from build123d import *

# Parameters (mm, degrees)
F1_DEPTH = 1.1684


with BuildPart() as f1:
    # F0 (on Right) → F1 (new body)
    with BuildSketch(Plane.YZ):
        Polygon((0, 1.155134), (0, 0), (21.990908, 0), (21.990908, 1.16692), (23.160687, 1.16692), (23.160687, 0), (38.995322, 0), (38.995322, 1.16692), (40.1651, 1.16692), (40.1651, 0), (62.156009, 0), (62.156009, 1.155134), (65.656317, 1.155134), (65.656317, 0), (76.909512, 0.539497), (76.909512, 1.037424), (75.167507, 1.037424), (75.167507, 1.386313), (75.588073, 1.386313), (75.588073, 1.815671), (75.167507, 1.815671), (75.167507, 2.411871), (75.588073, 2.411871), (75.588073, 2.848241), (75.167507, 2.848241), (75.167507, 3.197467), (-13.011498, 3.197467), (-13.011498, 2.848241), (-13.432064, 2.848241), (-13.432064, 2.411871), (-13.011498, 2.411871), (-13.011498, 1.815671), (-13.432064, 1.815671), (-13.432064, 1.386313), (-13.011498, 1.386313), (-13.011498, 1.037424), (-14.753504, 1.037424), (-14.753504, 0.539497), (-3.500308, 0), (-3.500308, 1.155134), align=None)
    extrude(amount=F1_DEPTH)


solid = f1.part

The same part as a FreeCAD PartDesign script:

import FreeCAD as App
import Part
import Sketcher
from FreeCAD import Vector
Q = App.Units.Quantity

doc = App.newDocument("Part")
body = doc.addObject("PartDesign::Body", "Body")

# Sketch on YZ plane
sketch1 = body.newObject("Sketcher::SketchObject", "Sketch")
sketch1.AttachmentSupport = (doc.getObject("YZ_Plane"), [""])
sketch1.MapMode = "FlatFace"
sketch1.addGeometry([
    Part.LineSegment(Vector(0, 1.16, 0), Vector(0, 0, 0)),  # 0
    Part.LineSegment(Vector(0, 0, 0), Vector(21.99, 0, 0)),  # 1
    Part.LineSegment(Vector(21.99, 0, 0), Vector(21.99, 1.17, 0)),  # 2
    Part.LineSegment(Vector(21.99, 1.17, 0), Vector(23.16, 1.17, 0)),  # 3
    Part.LineSegment(Vector(23.16, 1.17, 0), Vector(23.16, 0, 0)),  # 4
    Part.LineSegment(Vector(23.16, 0, 0), Vector(39, 0, 0)),  # 5
    Part.LineSegment(Vector(39, 0, 0), Vector(39, 1.17, 0)),  # 6
    Part.LineSegment(Vector(39, 1.17, 0), Vector(40.17, 1.17, 0)),  # 7
    Part.LineSegment(Vector(40.17, 1.17, 0), Vector(40.17, 0, 0)),  # 8
    Part.LineSegment(Vector(40.17, 0, 0), Vector(62.16, 0, 0)),  # 9
    Part.LineSegment(Vector(62.16, 0, 0), Vector(62.16, 1.16, 0)),  # 10
    Part.LineSegment(Vector(62.16, 1.16, 0), Vector(65.66, 1.16, 0)),  # 11
    Part.LineSegment(Vector(65.66, 1.16, 0), Vector(65.66, 0, 0)),  # 12
    Part.LineSegment(Vector(65.66, 0, 0), Vector(76.91, 0.54, 0)),  # 13
    Part.LineSegment(Vector(76.91, 0.54, 0), Vector(76.91, 1.04, 0)),  # 14
    Part.LineSegment(Vector(76.91, 1.04, 0), Vector(75.17, 1.04, 0)),  # 15
    Part.LineSegment(Vector(75.17, 1.04, 0), Vector(75.17, 1.39, 0)),  # 16
    Part.LineSegment(Vector(75.17, 1.39, 0), Vector(75.59, 1.39, 0)),  # 17
    Part.LineSegment(Vector(75.59, 1.39, 0), Vector(75.59, 1.82, 0)),  # 18
    Part.LineSegment(Vector(75.59, 1.82, 0), Vector(75.17, 1.82, 0)),  # 19
    Part.LineSegment(Vector(75.17, 1.82, 0), Vector(75.17, 2.41, 0)),  # 20
    Part.LineSegment(Vector(75.17, 2.41, 0), Vector(75.59, 2.41, 0)),  # 21
    Part.LineSegment(Vector(75.59, 2.41, 0), Vector(75.59, 2.85, 0)),  # 22
    Part.LineSegment(Vector(75.59, 2.85, 0), Vector(75.17, 2.85, 0)),  # 23
    Part.LineSegment(Vector(75.17, 2.85, 0), Vector(75.17, 3.2, 0)),  # 24
    Part.LineSegment(Vector(75.17, 3.2, 0), Vector(-13.01, 3.2, 0)),  # 25
    Part.LineSegment(Vector(-13.01, 3.2, 0), Vector(-13.01, 2.85, 0)),  # 26
    Part.LineSegment(Vector(-13.01, 2.85, 0), Vector(-13.43, 2.85, 0)),  # 27
    Part.LineSegment(Vector(-13.43, 2.85, 0), Vector(-13.43, 2.41, 0)),  # 28
    Part.LineSegment(Vector(-13.43, 2.41, 0), Vector(-13.01, 2.41, 0)),  # 29
    Part.LineSegment(Vector(-13.01, 2.41, 0), Vector(-13.01, 1.82, 0)),  # 30
    Part.LineSegment(Vector(-13.01, 1.82, 0), Vector(-13.43, 1.82, 0)),  # 31
    Part.LineSegment(Vector(-13.43, 1.82, 0), Vector(-13.43, 1.39, 0)),  # 32
    Part.LineSegment(Vector(-13.43, 1.39, 0), Vector(-13.01, 1.39, 0)),  # 33
    Part.LineSegment(Vector(-13.01, 1.39, 0), Vector(-13.01, 1.04, 0)),  # 34
    Part.LineSegment(Vector(-13.01, 1.04, 0), Vector(-14.75, 1.04, 0)),  # 35
    Part.LineSegment(Vector(-14.75, 1.04, 0), Vector(-14.75, 0.54, 0)),  # 36
    Part.LineSegment(Vector(-14.75, 0.54, 0), Vector(-3.5, 0, 0)),  # 37
    Part.LineSegment(Vector(-3.5, 0, 0), Vector(-3.5, 1.16, 0)),  # 38
    Part.LineSegment(Vector(-3.5, 1.16, 0), Vector(0, 1.16, 0)),  # 39
], False)
sketch1.addConstraint([
    Sketcher.Constraint("Coincident", 0, 2, 1, 1),
    Sketcher.Constraint("Coincident", 1, 2, 2, 1),
    Sketcher.Constraint("Coincident", 2, 2, 3, 1),
    Sketcher.Constraint("Coincident", 3, 2, 4, 1),
    Sketcher.Constraint("Coincident", 4, 2, 5, 1),
    Sketcher.Constraint("Coincident", 5, 2, 6, 1),
    Sketcher.Constraint("Coincident", 6, 2, 7, 1),
    Sketcher.Constraint("Coincident", 7, 2, 8, 1),
    Sketcher.Constraint("Coincident", 8, 2, 9, 1),
    Sketcher.Constraint("Coincident", 9, 2, 10, 1),
    Sketcher.Constraint("Coincident", 10, 2, 11, 1),
    Sketcher.Constraint("Coincident", 11, 2, 12, 1),
    Sketcher.Constraint("Coincident", 12, 2, 13, 1),
    Sketcher.Constraint("Coincident", 13, 2, 14, 1),
    Sketcher.Constraint("Coincident", 14, 2, 15, 1),
    Sketcher.Constraint("Coincident", 15, 2, 16, 1),
    Sketcher.Constraint("Coincident", 16, 2, 17, 1),
    Sketcher.Constraint("Coincident", 17, 2, 18, 1),
    Sketcher.Constraint("Coincident", 18, 2, 19, 1),
    Sketcher.Constraint("Coincident", 19, 2, 20, 1),
    Sketcher.Constraint("Coincident", 20, 2, 21, 1),
    Sketcher.Constraint("Coincident", 21, 2, 22, 1),
    Sketcher.Constraint("Coincident", 22, 2, 23, 1),
    Sketcher.Constraint("Coincident", 23, 2, 24, 1),
    Sketcher.Constraint("Coincident", 24, 2, 25, 1),
    Sketcher.Constraint("Coincident", 25, 2, 26, 1),
    Sketcher.Constraint("Coincident", 26, 2, 27, 1),
    Sketcher.Constraint("Coincident", 27, 2, 28, 1),
    Sketcher.Constraint("Coincident", 28, 2, 29, 1),
    Sketcher.Constraint("Coincident", 29, 2, 30, 1),
    Sketcher.Constraint("Coincident", 30, 2, 31, 1),
    Sketcher.Constraint("Coincident", 31, 2, 32, 1),
    Sketcher.Constraint("Coincident", 32, 2, 33, 1),
    Sketcher.Constraint("Coincident", 33, 2, 34, 1),
    Sketcher.Constraint("Coincident", 34, 2, 35, 1),
    Sketcher.Constraint("Coincident", 35, 2, 36, 1),
    Sketcher.Constraint("Coincident", 36, 2, 37, 1),
    Sketcher.Constraint("Coincident", 37, 2, 38, 1),
    Sketcher.Constraint("Coincident", 38, 2, 39, 1),
    Sketcher.Constraint("Coincident", 39, 2, 0, 1),
    Sketcher.Constraint("Vertical", 0),
    Sketcher.Constraint("Horizontal", 1),
    Sketcher.Constraint("Vertical", 2),
    Sketcher.Constraint("Horizontal", 3),
    Sketcher.Constraint("Vertical", 4),
    Sketcher.Constraint("Horizontal", 5),
    Sketcher.Constraint("Vertical", 6),
    Sketcher.Constraint("Horizontal", 7),
    Sketcher.Constraint("Vertical", 8),
    Sketcher.Constraint("Horizontal", 9),
    Sketcher.Constraint("Vertical", 10),
    Sketcher.Constraint("Horizontal", 11),
    Sketcher.Constraint("Vertical", 12),
    Sketcher.Constraint("Vertical", 14),
    Sketcher.Constraint("Horizontal", 15),
    Sketcher.Constraint("Vertical", 16),
    Sketcher.Constraint("Horizontal", 17),
    Sketcher.Constraint("Vertical", 18),
    Sketcher.Constraint("Horizontal", 19),
    Sketcher.Constraint("Vertical", 20),
    Sketcher.Constraint("Horizontal", 21),
    Sketcher.Constraint("Vertical", 22),
    Sketcher.Constraint("Horizontal", 23),
    Sketcher.Constraint("Vertical", 24),
    Sketcher.Constraint("Horizontal", 25),
    Sketcher.Constraint("Vertical", 26),
    Sketcher.Constraint("Horizontal", 27),
    Sketcher.Constraint("Vertical", 28),
    Sketcher.Constraint("Horizontal", 29),
    Sketcher.Constraint("Vertical", 30),
    Sketcher.Constraint("Horizontal", 31),
    Sketcher.Constraint("Vertical", 32),
    Sketcher.Constraint("Horizontal", 33),
    Sketcher.Constraint("Vertical", 34),
    Sketcher.Constraint("Horizontal", 35),
    Sketcher.Constraint("Vertical", 36),
    Sketcher.Constraint("Vertical", 38),
    Sketcher.Constraint("Horizontal", 39),
    Sketcher.Constraint("Coincident", 0, 2, -1, 1),
    Sketcher.Constraint("PointOnObject", 4, 2, -1),
    Sketcher.Constraint("PointOnObject", 8, 2, -1),
    Sketcher.Constraint("PointOnObject", 12, 2, -1),
    Sketcher.Constraint("PointOnObject", 37, 2, -1),
    Sketcher.Constraint("Horizontal", 3, 2, 6, 2),
    Sketcher.Constraint("Horizontal", 23, 2, 26, 2),
    Sketcher.Constraint("Horizontal", 21, 2, 28, 2),
    Sketcher.Constraint("Horizontal", 19, 2, 30, 2),
    Sketcher.Constraint("Horizontal", 17, 2, 32, 2),
    Sketcher.Constraint("Horizontal", 15, 2, 34, 2),
    Sketcher.Constraint("Horizontal", 13, 2, 36, 2),
    Sketcher.Constraint("Horizontal", 11, 2, 38, 2),
    Sketcher.Constraint("Vertical", 16, 2, 19, 2),
    Sketcher.Constraint("Vertical", 18, 2, 21, 2),
    Sketcher.Constraint("Vertical", 20, 2, 23, 2),
    Sketcher.Constraint("Vertical", 26, 2, 29, 2),
    Sketcher.Constraint("Vertical", 28, 2, 31, 2),
    Sketcher.Constraint("Vertical", 30, 2, 33, 2),
    Sketcher.Constraint("Equal", 3, 7),
    Sketcher.Constraint("Equal", 1, 9),
    Sketcher.Constraint("Equal", 23, 27),
    Sketcher.Constraint("Equal", 15, 35),
    Sketcher.Constraint("Equal", 11, 39),
    Sketcher.Constraint("Equal", 13, 37),
    Sketcher.Constraint("DistanceY", 20, 1, 20, 2, Q("0.5962 mm")),
    Sketcher.Constraint("DistanceX", 1, 1, 1, 2, Q("21.990908 mm")),
    Sketcher.Constraint("DistanceX", 3, 1, 3, 2, Q("1.169779 mm")),
    Sketcher.Constraint("DistanceX", 11, 1, 11, 2, Q("3.500308 mm")),
    Sketcher.Constraint("DistanceY", 2, 1, 2, 2, Q("1.16692 mm")),
    Sketcher.Constraint("DistanceY", 16, 1, 16, 2, Q("0.348889 mm")),
    Sketcher.Constraint("DistanceY", 18, 1, 18, 2, Q("0.429358 mm")),
    Sketcher.Constraint("DistanceY", 22, 1, 22, 2, Q("0.43637 mm")),
    Sketcher.Constraint("DistanceX", -1, 1, 7, 2, Q("40.1651 mm")),
    Sketcher.Constraint("DistanceX", 10, 2, 15, 2, Q("13.011498 mm")),
    Sketcher.Constraint("Distance", 13, Q("11.26612 mm")),
    Sketcher.Constraint("DistanceX", 15, 2, 15, 1, Q("1.742005 mm")),
    Sketcher.Constraint("DistanceX", 17, 1, 17, 2, Q("0.420566 mm")),
    Sketcher.Constraint("DistanceY", 0, 2, 0, 1, Q("1.155134 mm")),
    Sketcher.Constraint("DistanceY", 14, 1, 14, 2, Q("0.497927 mm")),
    Sketcher.Constraint("DistanceY", 24, 1, 24, 2, Q("0.349226 mm")),
])
pad1 = body.newObject("PartDesign::Pad", "Pad")
pad1.Profile = sketch1
pad1.Length = Q("0.046 in")

doc.recompute()
